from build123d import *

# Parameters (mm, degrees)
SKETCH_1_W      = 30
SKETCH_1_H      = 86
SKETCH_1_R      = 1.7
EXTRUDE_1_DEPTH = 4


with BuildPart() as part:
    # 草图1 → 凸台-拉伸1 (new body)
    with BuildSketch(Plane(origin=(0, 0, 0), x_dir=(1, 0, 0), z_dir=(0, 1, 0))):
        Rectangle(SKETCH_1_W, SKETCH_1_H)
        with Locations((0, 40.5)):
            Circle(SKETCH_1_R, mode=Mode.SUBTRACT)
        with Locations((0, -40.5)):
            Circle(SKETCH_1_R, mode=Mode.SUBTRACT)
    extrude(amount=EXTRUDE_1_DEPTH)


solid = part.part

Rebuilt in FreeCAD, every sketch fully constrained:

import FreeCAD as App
import Part
import Sketcher
from FreeCAD import Vector
Q = App.Units.Quantity

doc = App.newDocument("Part")
params = doc.addObject("Spreadsheet::Sheet", "Params")
for row, (alias, value) in enumerate([
    ("sketch1_diameter", "3.4 mm"),
    ("sketch1_width", "30 mm"),
    ("sketch1_height", "86 mm"),
    ("pad1_length", "4 mm"),
], start=1):
    params.set(f"A{row}", alias)
    params.set(f"B{row}", "=" + value)
    params.setAlias(f"B{row}", alias)

body = doc.addObject("PartDesign::Body", "Body")

# Sketch on XZ plane
sketch1 = body.newObject("Sketcher::SketchObject", "Sketch")
sketch1.AttachmentSupport = (doc.getObject("XZ_Plane"), [""])
sketch1.MapMode = "FlatFace"
sketch1.addGeometry(Part.LineSegment(Vector(-15, -43, 0), Vector(-15, 43, 0)), False)
sketch1.addGeometry(Part.LineSegment(Vector(-15, 43, 0), Vector(15, 43, 0)), False)
sketch1.addGeometry(Part.LineSegment(Vector(15, 43, 0), Vector(15, -43, 0)), False)
sketch1.addGeometry(Part.LineSegment(Vector(15, -43, 0), Vector(-15, -43, 0)), False)
sketch1.addGeometry(Part.Circle(Vector(0, 40.5, 0), Vector(0, 0, 1), 1.7), False)
sketch1.addGeometry(Part.Circle(Vector(0, -40.5, 0), Vector(0, 0, 1), 1.7), False)
sketch1.addConstraint(Sketcher.Constraint("Coincident", 0, 2, 1, 1))
sketch1.addConstraint(Sketcher.Constraint("Coincident", 1, 2, 2, 1))
sketch1.addConstraint(Sketcher.Constraint("Coincident", 2, 2, 3, 1))
sketch1.addConstraint(Sketcher.Constraint("Coincident", 3, 2, 0, 1))
sketch1.addConstraint(Sketcher.Constraint("Vertical", 0))
sketch1.addConstraint(Sketcher.Constraint("Horizontal", 1))
sketch1.addConstraint(Sketcher.Constraint("Vertical", 2))
sketch1.addConstraint(Sketcher.Constraint("Horizontal", 3))
sketch1.addConstraint(Sketcher.Constraint("Equal", 4, 5))
sketch1.addConstraint(Sketcher.Constraint("Symmetric", 4, 3, 5, 3, -1, 1))
sketch1.addConstraint(Sketcher.Constraint("Symmetric", 0, 2, 2, 2, -1, 1))
sketch1.addConstraint(Sketcher.Constraint("PointOnObject", 4, 3, -2))
sketch1.addConstraint(Sketcher.Constraint("Diameter", 4, Q("3.4 mm")))
sketch1.addConstraint(Sketcher.Constraint("DistanceX", 1, 1, 1, 2, Q("30 mm")))
sketch1.addConstraint(Sketcher.Constraint("DistanceY", 0, 1, 0, 2, Q("86 mm")))
sketch1.addConstraint(Sketcher.Constraint("DistanceY", 5, 3, 4, 3, Q("81 mm")))
sketch1.setExpression("Constraints[12]", "Params.sketch1_diameter")
sketch1.setExpression("Constraints[13]", "Params.sketch1_width")
sketch1.setExpression("Constraints[14]", "Params.sketch1_height")
pad1 = body.newObject("PartDesign::Pad", "Pad")
pad1.Profile = sketch1
pad1.setExpression("Length", "Params.pad1_length")
pad1.Reversed = True

doc.recompute()
